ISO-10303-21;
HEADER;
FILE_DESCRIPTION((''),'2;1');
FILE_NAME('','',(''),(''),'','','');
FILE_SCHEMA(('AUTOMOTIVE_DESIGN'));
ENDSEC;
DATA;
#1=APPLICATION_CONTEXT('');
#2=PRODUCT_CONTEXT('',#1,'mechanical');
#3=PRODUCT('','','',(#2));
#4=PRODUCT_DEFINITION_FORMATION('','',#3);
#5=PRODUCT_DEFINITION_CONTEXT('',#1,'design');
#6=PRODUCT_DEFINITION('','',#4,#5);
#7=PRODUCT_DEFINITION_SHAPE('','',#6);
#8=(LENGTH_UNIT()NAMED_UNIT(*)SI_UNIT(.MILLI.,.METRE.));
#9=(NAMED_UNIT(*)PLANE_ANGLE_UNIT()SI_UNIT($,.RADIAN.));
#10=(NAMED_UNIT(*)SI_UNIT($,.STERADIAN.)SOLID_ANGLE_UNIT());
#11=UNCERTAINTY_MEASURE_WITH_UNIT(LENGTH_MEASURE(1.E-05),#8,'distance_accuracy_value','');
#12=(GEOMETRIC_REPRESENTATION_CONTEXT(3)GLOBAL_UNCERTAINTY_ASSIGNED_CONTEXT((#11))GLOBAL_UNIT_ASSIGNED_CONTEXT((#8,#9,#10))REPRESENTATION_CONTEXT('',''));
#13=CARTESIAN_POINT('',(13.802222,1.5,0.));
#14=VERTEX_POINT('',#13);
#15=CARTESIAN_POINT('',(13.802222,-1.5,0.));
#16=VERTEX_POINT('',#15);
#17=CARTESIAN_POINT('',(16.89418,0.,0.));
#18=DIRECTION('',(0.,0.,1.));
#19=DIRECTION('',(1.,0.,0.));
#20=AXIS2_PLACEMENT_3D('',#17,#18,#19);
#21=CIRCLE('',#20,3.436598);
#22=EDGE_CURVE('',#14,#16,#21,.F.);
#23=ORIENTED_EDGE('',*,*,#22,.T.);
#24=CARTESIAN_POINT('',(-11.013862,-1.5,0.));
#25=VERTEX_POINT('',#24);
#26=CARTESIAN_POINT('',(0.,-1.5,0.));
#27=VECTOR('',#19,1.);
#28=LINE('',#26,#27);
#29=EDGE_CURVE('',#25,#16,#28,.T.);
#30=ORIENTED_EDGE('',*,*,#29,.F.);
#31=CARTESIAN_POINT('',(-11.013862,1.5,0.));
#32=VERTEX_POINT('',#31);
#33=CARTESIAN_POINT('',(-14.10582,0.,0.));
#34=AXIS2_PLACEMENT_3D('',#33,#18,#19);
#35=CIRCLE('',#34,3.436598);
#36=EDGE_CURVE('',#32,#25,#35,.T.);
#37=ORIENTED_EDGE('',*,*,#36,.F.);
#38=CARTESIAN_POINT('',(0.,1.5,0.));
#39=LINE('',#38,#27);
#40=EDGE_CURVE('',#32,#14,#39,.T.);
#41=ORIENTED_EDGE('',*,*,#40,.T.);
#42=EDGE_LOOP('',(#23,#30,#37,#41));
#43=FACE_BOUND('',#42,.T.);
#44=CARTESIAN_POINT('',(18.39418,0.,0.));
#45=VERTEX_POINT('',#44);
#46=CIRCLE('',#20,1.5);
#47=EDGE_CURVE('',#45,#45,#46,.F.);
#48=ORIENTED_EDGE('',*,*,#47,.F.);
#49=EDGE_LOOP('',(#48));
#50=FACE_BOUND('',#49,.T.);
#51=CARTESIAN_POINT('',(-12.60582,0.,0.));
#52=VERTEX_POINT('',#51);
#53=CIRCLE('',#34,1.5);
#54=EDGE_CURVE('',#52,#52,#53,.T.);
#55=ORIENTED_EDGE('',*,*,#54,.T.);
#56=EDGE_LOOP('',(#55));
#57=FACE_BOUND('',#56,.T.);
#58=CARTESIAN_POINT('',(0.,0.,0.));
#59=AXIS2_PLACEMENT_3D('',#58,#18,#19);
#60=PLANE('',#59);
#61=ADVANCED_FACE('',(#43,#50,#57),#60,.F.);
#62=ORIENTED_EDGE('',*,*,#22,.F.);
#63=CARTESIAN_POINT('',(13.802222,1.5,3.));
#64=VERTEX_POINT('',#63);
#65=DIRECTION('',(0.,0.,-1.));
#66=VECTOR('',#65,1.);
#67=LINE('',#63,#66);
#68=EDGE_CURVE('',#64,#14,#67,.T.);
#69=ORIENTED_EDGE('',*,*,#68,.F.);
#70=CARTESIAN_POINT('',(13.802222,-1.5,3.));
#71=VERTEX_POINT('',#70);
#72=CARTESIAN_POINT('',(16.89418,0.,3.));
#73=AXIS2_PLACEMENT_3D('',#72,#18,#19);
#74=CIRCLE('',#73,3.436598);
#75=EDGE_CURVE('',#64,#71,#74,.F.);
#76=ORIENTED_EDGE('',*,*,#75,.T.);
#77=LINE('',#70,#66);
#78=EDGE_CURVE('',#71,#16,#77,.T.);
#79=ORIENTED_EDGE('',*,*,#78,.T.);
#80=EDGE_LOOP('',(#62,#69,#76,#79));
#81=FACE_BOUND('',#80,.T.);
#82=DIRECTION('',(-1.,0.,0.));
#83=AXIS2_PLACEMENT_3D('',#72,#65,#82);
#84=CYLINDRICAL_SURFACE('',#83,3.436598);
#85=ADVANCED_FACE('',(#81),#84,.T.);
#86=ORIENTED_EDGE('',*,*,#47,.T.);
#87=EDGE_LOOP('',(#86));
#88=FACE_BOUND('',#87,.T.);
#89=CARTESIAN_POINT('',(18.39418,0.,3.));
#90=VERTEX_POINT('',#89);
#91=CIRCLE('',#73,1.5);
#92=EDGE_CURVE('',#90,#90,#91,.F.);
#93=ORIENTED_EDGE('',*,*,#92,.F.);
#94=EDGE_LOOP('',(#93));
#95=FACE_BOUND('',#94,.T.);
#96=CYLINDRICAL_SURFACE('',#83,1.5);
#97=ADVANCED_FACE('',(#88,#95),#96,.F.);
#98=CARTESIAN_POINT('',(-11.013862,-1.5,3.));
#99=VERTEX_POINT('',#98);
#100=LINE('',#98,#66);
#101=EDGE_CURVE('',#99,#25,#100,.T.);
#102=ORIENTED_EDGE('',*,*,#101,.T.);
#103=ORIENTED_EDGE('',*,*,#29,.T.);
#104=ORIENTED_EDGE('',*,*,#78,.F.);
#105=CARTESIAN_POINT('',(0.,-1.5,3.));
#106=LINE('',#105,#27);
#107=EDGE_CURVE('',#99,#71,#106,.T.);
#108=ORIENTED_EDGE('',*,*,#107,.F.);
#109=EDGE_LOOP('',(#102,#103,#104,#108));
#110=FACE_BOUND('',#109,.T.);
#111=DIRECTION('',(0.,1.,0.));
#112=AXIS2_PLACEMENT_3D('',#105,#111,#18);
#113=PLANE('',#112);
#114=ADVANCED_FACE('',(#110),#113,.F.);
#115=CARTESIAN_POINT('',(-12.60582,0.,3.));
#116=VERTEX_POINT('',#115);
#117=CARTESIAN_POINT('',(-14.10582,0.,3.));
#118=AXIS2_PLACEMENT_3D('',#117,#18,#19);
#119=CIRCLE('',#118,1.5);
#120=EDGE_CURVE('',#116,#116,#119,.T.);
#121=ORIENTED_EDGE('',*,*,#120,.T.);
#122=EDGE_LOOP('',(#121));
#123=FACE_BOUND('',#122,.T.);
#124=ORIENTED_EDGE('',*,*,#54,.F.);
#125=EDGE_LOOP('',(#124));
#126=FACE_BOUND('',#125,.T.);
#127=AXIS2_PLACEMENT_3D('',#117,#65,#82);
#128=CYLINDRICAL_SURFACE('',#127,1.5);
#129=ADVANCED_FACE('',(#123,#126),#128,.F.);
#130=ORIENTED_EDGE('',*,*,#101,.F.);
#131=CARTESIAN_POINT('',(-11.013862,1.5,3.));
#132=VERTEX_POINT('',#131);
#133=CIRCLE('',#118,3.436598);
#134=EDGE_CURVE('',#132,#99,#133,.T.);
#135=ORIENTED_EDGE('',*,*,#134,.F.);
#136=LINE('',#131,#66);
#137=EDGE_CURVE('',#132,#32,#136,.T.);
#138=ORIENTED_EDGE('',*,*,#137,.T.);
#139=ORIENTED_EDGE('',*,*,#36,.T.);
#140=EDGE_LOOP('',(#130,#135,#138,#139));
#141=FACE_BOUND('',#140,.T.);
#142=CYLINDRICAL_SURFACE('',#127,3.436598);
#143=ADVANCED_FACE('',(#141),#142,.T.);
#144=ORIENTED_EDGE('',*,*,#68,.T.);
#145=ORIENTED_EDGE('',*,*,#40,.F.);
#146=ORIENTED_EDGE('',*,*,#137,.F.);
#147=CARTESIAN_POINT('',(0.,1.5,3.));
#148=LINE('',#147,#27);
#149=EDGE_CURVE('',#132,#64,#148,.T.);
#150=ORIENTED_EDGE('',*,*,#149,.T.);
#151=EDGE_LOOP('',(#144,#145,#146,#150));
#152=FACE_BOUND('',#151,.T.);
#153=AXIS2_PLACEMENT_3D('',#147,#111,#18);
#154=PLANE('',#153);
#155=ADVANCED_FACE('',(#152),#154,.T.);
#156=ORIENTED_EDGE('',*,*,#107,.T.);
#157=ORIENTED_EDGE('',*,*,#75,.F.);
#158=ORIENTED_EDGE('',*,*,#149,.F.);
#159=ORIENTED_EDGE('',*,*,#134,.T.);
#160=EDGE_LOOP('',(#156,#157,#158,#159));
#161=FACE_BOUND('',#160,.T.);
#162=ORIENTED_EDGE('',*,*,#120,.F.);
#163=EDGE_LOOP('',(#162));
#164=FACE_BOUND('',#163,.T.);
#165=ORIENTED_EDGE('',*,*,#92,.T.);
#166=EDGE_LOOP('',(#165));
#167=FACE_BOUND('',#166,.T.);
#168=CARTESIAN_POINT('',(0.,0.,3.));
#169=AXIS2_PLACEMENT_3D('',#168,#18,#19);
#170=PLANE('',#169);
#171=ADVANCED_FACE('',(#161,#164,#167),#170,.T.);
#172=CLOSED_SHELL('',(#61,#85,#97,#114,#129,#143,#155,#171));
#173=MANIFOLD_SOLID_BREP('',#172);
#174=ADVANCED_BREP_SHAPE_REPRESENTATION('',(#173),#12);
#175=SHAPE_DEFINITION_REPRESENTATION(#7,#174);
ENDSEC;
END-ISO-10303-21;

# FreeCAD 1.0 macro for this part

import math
import FreeCAD as App
import Part
import Sketcher
from FreeCAD import Vector

doc = App.newDocument("Part")
body = doc.addObject("PartDesign::Body", "Body")

# Sketch on XY plane
sketch1 = body.newObject("Sketcher::SketchObject", "Sketch")
sketch1.AttachmentSupport = (doc.getObject("XY_Plane"), [""])
sketch1.MapMode = "FlatFace"
sketch1.addGeometry(Part.ArcOfCircle(Part.Circle(Vector(-14.1, 0, 0), Vector(0, 0, 1), 3.4), math.radians(26), math.radians(334)), False)
sketch1.addGeometry(Part.LineSegment(Vector(-11, -1.5, 0), Vector(13.8, -1.5, 0)), False)
sketch1.addGeometry(Part.ArcOfCircle(Part.Circle(Vector(16.9, 0, 0), Vector(0, 0, 1), 3.4), math.radians(-154), math.radians(154)), False)
sketch1.addGeometry(Part.LineSegment(Vector(13.8, 1.5, 0), Vector(-11, 1.5, 0)), False)
sketch1.addGeometry(Part.Circle(Vector(-14.1, 0, 0), Vector(0, 0, 1), 1.5), False)
sketch1.addGeometry(Part.Circle(Vector(16.9, 0, 0), Vector(0, 0, 1), 1.5), False)
sketch1.addConstraint(Sketcher.Constraint("Coincident", 0, 2, 1, 1))
sketch1.addConstraint(Sketcher.Constraint("Coincident", 1, 2, 2, 1))
sketch1.addConstraint(Sketcher.Constraint("Coincident", 2, 2, 3, 1))
sketch1.addConstraint(Sketcher.Constraint("Coincident", 3, 2, 0, 1))
sketch1.addConstraint(Sketcher.Constraint("Horizontal", 1))
sketch1.addConstraint(Sketcher.Constraint("Horizontal", 3))
sketch1.addConstraint(Sketcher.Constraint("Coincident", 4, 3, 0, 3))
sketch1.addConstraint(Sketcher.Constraint("Coincident", 5, 3, 2, 3))
sketch1.addConstraint(Sketcher.Constraint("Equal", 0, 2))
sketch1.addConstraint(Sketcher.Constraint("Equal", 4, 5))
sketch1.addConstraint(Sketcher.Constraint("Symmetric", 1, 2, 2, 2, -1))
sketch1.addConstraint(Sketcher.Constraint("PointOnObject", 0, 3, -1))
sketch1.addConstraint(Sketcher.Constraint("Diameter", 4, 3.0))
sketch1.addConstraint(Sketcher.Constraint("DistanceX", 0, 3, 2, 3, 31.0))
sketch1.addConstraint(Sketcher.Constraint("DistanceY", 1, 2, 2, 2, 3.0))
sketch1.addConstraint(Sketcher.Constraint("Radius", 0, 3.436598))
sketch1.addConstraint(Sketcher.Constraint("DistanceX", 0, 3, -1, 1, 14.10582))
pad1 = body.newObject("PartDesign::Pad", "Pad")
pad1.Profile = sketch1
pad1.Length = 3

doc.recompute()
